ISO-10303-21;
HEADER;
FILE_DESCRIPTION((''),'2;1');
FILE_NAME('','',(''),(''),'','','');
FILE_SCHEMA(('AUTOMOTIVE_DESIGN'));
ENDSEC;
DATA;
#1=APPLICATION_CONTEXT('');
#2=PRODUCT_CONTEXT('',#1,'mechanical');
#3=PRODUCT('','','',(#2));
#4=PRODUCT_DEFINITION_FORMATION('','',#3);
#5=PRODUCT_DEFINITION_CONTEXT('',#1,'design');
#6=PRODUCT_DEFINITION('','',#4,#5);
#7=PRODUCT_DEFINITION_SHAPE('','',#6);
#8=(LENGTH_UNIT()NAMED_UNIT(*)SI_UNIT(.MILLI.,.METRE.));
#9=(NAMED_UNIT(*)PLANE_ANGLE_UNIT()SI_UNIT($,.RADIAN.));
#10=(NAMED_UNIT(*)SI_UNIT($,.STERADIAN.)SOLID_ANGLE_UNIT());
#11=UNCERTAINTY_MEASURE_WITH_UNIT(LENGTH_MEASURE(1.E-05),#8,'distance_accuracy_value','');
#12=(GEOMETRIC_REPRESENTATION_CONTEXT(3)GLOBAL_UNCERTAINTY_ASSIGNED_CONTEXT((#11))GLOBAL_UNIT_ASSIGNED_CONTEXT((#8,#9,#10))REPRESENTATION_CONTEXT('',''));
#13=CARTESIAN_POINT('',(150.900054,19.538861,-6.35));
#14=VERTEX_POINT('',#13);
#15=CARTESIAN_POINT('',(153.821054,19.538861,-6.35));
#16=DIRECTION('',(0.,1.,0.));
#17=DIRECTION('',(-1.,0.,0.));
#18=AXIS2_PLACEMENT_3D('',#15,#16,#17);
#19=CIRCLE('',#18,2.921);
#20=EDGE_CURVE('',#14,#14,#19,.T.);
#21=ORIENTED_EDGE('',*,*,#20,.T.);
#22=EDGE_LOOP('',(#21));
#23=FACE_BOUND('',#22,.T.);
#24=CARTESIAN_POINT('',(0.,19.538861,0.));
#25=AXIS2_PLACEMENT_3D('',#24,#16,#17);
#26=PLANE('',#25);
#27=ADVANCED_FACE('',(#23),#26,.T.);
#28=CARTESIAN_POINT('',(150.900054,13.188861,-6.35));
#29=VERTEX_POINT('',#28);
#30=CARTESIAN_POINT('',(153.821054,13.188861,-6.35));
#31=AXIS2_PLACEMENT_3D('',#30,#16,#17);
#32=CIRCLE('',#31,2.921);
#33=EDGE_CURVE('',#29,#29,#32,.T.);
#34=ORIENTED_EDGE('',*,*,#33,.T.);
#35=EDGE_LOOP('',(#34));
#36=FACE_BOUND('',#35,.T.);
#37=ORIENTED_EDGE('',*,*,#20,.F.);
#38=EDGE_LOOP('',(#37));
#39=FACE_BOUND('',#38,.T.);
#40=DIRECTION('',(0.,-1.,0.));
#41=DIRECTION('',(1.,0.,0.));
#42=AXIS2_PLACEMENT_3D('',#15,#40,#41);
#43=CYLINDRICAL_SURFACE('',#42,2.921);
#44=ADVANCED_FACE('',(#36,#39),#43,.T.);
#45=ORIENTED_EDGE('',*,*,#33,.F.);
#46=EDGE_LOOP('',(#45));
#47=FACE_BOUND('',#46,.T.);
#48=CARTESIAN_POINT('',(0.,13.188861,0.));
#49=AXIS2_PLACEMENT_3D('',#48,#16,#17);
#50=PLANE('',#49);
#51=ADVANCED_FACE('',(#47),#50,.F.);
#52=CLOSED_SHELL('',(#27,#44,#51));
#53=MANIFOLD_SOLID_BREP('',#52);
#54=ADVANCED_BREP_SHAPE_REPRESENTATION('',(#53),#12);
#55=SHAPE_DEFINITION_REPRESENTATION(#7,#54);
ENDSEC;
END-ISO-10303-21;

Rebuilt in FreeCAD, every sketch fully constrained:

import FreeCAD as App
import Part
import Sketcher
Q = App.Units.Quantity

doc = App.newDocument("Part")
body = doc.addObject("PartDesign::Body", "Body")

sketch1 = body.newObject("Sketcher::SketchObject", "Sketch")
sketch1.AttachmentSupport = (doc.getObject("XZ_Plane"), [""])
sketch1.MapMode = "FlatFace"
sketch1.AttachmentOffset = App.Placement(App.Vector(0, 0, -13.188861), App.Rotation())
sketch1.addGeometry(Part.Circle(App.Vector(153.8, -6.3, 0), App.Vector(0, 0, 1), 2.9), False)
sketch1.addConstraint(Sketcher.Constraint("Diameter", 0, Q("0.23 in")))
sketch1.addConstraint(Sketcher.Constraint("DistanceY", 0, 3, -1, 1, Q("0.25 in")))
sketch1.addConstraint(Sketcher.Constraint("DistanceX", -1, 1, 0, 3, Q("153.821054 mm")))
pad1 = body.newObject("PartDesign::Pad", "Pad")
pad1.Profile = sketch1
pad1.Length = Q("0.25 in")
pad1.Reversed = True

sketch2 = body.newObject("Sketcher::SketchObject", "Sketch001")
sketch2.AttachmentSupport = (doc.getObject("XY_Plane"), [""])
sketch2.MapMode = "FlatFace"
sketch2.addGeometry(Part.Circle(App.Vector(128.4, 8.7, 0), App.Vector(0, 0, 1), 2.5), False)
sketch2.addConstraint(Sketcher.Constraint("Diameter", 0, Q("0.2 in")))
sketch2.addConstraint(Sketcher.Constraint("DistanceY", -1, 1, 0, 3, Q("8.743861 mm")))
sketch2.addConstraint(Sketcher.Constraint("DistanceX", -1, 1, 0, 3, Q("128.421054 mm")))
pocket1 = body.newObject("PartDesign::Pocket", "Pocket")
pocket1.Profile = sketch2
pocket1.Type = "ThroughAll"

doc.recompute()
